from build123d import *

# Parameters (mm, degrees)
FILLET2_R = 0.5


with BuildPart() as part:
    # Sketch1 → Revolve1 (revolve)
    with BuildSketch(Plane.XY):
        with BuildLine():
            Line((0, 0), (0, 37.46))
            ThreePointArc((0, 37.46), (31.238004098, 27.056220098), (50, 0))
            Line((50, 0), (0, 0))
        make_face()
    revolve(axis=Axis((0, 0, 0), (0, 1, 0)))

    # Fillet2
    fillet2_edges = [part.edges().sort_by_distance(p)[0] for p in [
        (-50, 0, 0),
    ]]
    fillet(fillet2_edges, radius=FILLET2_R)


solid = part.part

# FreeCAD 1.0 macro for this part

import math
import FreeCAD as App
import Part
import Sketcher

V = App.Vector
Q = App.Units.Quantity


def edges_at(feature, points):
    """Names of the edges that pass closest to the given points."""
    edges = feature.Shape.Edges
    near = lambda p: min(range(len(edges)), key=lambda i: edges[i].distToShape(Part.Vertex(*p))[0])
    return sorted({f"Edge{near(p) + 1}" for p in points})

doc = App.newDocument("Part")
params = doc.addObject("Spreadsheet::Sheet", "Params")
for row, (alias, value) in enumerate([
    ("sketch1_width", "50 mm"),
    ("sketch1_height", "37.46 mm"),
    ("revolution_angle", "360 deg"),
    ("fillet_radius", "0.5 mm"),
], start=1):
    params.set(f"A{row}", alias)
    params.set(f"B{row}", "=" + value)
    params.setAlias(f"B{row}", alias)

body = doc.addObject("PartDesign::Body", "Body")

# Sketch on XY plane
sketch1 = body.newObject("Sketcher::SketchObject", "Sketch")
sketch1.AttachmentSupport = (doc.getObject("XY_Plane"), [""])
sketch1.MapMode = "FlatFace"
sketch1.addGeometry(Part.LineSegment(V(0, 37.46, 0), V(0, 0, 0)), False)
sketch1.addGeometry(Part.LineSegment(V(0, 0, 0), V(50, 0, 0)), False)
sketch1.addGeometry(Part.ArcOfCircle(Part.Circle(V(0, -14.638927, 0), V(0, 0, 1), 52.098927), math.radians(16.318898), math.radians(90)), False)
sketch1.addConstraint(Sketcher.Constraint("Coincident", 0, 2, 1, 1))
sketch1.addConstraint(Sketcher.Constraint("Coincident", 1, 2, 2, 1))
sketch1.addConstraint(Sketcher.Constraint("Coincident", 2, 2, 0, 1))
sketch1.addConstraint(Sketcher.Constraint("Vertical", 0))
sketch1.addConstraint(Sketcher.Constraint("Horizontal", 1))
sketch1.addConstraint(Sketcher.Constraint("Coincident", 0, 2, -1, 1))
sketch1.addConstraint(Sketcher.Constraint("PointOnObject", 2, 3, -2))
sketch1.addConstraint(Sketcher.Constraint("DistanceX", 1, 1, 1, 2, Q("50 mm")))
sketch1.addConstraint(Sketcher.Constraint("DistanceY", 0, 2, 0, 1, Q("37.46 mm")))
sketch1.setExpression("Constraints[7]", "Params.sketch1_width")
sketch1.setExpression("Constraints[8]", "Params.sketch1_height")
revolution = body.newObject("PartDesign::Revolution", "Revolution")
revolution.Profile = sketch1
revolution.ReferenceAxis = (sketch1, ["V_Axis"])
revolution.setExpression("Angle", "Params.revolution_angle")
doc.recompute()

fillet = body.newObject("PartDesign::Fillet", "Fillet")
fillet.Base = (revolution, edges_at(revolution, [(-50, 0, 0)]))
fillet.setExpression("Radius", "Params.fillet_radius")

doc.recompute()
